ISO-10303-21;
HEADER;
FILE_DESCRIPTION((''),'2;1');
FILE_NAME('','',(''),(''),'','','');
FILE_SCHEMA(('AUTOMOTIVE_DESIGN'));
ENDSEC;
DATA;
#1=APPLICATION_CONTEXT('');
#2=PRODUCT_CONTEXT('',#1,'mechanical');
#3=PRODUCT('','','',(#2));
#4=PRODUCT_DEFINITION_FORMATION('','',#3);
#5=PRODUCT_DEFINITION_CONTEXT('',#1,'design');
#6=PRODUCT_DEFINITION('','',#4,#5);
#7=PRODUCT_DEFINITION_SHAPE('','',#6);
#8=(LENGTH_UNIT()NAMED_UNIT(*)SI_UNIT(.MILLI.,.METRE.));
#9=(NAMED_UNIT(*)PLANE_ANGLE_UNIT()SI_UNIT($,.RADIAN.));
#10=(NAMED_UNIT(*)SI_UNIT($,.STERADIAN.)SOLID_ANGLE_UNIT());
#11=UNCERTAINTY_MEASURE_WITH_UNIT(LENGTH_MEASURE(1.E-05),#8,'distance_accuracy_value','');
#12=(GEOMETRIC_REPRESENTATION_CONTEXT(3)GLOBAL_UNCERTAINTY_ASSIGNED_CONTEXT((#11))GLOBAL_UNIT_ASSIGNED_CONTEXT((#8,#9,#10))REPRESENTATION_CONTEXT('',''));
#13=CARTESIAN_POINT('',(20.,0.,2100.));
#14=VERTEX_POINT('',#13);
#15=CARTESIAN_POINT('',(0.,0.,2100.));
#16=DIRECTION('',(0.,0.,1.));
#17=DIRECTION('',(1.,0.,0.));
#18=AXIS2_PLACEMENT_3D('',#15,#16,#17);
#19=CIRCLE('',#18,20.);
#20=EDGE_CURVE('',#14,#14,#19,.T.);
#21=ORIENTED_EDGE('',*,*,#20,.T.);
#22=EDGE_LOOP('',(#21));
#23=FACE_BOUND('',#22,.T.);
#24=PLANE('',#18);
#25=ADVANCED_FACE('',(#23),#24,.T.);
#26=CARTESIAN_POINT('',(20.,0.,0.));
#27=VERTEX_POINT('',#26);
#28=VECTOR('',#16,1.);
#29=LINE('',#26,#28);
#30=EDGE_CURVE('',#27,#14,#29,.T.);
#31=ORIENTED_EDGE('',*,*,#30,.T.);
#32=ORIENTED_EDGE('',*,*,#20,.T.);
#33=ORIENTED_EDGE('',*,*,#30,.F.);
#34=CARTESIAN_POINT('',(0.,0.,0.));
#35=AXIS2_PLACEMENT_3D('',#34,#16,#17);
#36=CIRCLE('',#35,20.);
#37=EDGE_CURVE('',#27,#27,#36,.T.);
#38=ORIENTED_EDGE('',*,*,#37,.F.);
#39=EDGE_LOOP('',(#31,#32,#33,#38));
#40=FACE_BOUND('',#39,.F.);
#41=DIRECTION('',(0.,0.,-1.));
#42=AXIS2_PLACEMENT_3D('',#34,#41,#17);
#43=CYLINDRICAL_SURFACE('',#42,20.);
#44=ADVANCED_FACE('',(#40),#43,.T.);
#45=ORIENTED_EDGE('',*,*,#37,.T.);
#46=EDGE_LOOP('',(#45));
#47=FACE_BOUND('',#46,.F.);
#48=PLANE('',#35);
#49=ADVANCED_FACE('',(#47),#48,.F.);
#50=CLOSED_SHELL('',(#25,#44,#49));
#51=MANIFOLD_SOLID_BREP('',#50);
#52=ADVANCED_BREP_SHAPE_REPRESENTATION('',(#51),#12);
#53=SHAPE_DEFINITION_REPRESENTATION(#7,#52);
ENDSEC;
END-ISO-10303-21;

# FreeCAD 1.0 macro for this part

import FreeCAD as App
import Part
import Sketcher

V = App.Vector
Q = App.Units.Quantity

doc = App.newDocument("Part")
body = doc.addObject("PartDesign::Body", "Body")

# Sketch on XY plane
sketch1 = doc.addObject("Sketcher::SketchObject", "Sketch")
body.addObject(sketch1)
sketch1.AttachmentSupport = (doc.XY_Plane, [""])
sketch1.MapMode = "FlatFace"
sketch1.addGeometry(Part.Circle(V(0, 0, 0), V(0, 0, 1), 20), False)
sketch1.addConstraint([
    Sketcher.Constraint("Coincident", 0, 3, -1, 1),
    Sketcher.Constraint("Diameter", 0, Q("40 mm")),
])
pad1 = doc.addObject("PartDesign::Pad", "Pad")
body.addObject(pad1)
pad1.Profile = sketch1
pad1.Length = 2100

doc.recompute()
